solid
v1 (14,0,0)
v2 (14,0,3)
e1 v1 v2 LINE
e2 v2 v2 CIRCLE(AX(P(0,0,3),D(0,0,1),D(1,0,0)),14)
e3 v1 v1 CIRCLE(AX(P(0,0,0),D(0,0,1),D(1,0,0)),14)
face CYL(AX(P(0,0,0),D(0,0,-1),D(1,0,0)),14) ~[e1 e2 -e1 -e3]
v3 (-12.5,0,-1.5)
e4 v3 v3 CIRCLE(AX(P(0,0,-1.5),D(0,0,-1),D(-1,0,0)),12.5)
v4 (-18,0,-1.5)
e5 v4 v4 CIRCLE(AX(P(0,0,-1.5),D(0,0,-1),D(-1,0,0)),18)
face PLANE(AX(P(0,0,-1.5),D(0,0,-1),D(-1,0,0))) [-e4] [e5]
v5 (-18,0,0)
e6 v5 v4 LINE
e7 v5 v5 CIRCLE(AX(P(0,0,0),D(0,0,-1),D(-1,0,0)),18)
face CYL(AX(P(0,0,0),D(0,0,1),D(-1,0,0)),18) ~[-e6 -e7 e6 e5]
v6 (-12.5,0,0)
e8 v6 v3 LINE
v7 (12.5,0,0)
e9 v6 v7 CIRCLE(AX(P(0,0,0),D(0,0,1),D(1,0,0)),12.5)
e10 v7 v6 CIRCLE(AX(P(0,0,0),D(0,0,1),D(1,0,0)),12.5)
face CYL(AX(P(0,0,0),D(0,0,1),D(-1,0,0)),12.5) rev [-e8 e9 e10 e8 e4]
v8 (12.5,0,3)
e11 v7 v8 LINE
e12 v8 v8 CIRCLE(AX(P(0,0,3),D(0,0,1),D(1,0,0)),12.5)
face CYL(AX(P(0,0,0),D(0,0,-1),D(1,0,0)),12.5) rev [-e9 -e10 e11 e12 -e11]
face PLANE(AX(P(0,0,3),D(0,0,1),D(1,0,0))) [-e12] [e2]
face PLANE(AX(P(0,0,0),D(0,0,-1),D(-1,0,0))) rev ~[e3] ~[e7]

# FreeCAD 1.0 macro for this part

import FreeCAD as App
import Part
import Sketcher
from FreeCAD import Vector
Q = App.Units.Quantity

doc = App.newDocument("Part")
body = doc.addObject("PartDesign::Body", "Body")

# Sketch on XY plane
sketch1 = body.newObject("Sketcher::SketchObject", "Sketch")
sketch1.AttachmentSupport = (doc.getObject("XY_Plane"), [""])
sketch1.MapMode = "FlatFace"
sketch1.addGeometry(Part.Circle(Vector(0, 0, 0), Vector(0, 0, 1), 14), False)
sketch1.addGeometry(Part.Circle(Vector(0, 0, 0), Vector(0, 0, 1), 12.5), False)
sketch1.addConstraint(Sketcher.Constraint("Coincident", 0, 3, -1, 1))
sketch1.addConstraint(Sketcher.Constraint("Coincident", 1, 3, -1, 1))
sketch1.addConstraint(Sketcher.Constraint("Diameter", 0, Q("28 mm")))
sketch1.addConstraint(Sketcher.Constraint("Diameter", 1, Q("25 mm")))
pad1 = body.newObject("PartDesign::Pad", "Pad")
pad1.Profile = sketch1
pad1.Length = 3

# Sketch on XY plane
sketch2 = body.newObject("Sketcher::SketchObject", "Sketch001")
sketch2.AttachmentSupport = (doc.getObject("XY_Plane"), [""])
sketch2.MapMode = "FlatFace"
sketch2.addGeometry(Part.Circle(Vector(0, 0, 0), Vector(0, 0, 1), 18), False)
sketch2.addGeometry(Part.Circle(Vector(0, 0, 0), Vector(0, 0, 1), 12.5), False)
sketch2.addConstraint(Sketcher.Constraint("Coincident", 0, 3, -1, 1))
sketch2.addConstraint(Sketcher.Constraint("Coincident", 1, 3, -1, 1))
sketch2.addConstraint(Sketcher.Constraint("Diameter", 0, Q("36 mm")))
sketch2.addConstraint(Sketcher.Constraint("Diameter", 1, Q("25 mm")))
pad2 = body.newObject("PartDesign::Pad", "Pad001")
pad2.Profile = sketch2
pad2.Length = 1.5
pad2.Reversed = True

doc.recompute()
